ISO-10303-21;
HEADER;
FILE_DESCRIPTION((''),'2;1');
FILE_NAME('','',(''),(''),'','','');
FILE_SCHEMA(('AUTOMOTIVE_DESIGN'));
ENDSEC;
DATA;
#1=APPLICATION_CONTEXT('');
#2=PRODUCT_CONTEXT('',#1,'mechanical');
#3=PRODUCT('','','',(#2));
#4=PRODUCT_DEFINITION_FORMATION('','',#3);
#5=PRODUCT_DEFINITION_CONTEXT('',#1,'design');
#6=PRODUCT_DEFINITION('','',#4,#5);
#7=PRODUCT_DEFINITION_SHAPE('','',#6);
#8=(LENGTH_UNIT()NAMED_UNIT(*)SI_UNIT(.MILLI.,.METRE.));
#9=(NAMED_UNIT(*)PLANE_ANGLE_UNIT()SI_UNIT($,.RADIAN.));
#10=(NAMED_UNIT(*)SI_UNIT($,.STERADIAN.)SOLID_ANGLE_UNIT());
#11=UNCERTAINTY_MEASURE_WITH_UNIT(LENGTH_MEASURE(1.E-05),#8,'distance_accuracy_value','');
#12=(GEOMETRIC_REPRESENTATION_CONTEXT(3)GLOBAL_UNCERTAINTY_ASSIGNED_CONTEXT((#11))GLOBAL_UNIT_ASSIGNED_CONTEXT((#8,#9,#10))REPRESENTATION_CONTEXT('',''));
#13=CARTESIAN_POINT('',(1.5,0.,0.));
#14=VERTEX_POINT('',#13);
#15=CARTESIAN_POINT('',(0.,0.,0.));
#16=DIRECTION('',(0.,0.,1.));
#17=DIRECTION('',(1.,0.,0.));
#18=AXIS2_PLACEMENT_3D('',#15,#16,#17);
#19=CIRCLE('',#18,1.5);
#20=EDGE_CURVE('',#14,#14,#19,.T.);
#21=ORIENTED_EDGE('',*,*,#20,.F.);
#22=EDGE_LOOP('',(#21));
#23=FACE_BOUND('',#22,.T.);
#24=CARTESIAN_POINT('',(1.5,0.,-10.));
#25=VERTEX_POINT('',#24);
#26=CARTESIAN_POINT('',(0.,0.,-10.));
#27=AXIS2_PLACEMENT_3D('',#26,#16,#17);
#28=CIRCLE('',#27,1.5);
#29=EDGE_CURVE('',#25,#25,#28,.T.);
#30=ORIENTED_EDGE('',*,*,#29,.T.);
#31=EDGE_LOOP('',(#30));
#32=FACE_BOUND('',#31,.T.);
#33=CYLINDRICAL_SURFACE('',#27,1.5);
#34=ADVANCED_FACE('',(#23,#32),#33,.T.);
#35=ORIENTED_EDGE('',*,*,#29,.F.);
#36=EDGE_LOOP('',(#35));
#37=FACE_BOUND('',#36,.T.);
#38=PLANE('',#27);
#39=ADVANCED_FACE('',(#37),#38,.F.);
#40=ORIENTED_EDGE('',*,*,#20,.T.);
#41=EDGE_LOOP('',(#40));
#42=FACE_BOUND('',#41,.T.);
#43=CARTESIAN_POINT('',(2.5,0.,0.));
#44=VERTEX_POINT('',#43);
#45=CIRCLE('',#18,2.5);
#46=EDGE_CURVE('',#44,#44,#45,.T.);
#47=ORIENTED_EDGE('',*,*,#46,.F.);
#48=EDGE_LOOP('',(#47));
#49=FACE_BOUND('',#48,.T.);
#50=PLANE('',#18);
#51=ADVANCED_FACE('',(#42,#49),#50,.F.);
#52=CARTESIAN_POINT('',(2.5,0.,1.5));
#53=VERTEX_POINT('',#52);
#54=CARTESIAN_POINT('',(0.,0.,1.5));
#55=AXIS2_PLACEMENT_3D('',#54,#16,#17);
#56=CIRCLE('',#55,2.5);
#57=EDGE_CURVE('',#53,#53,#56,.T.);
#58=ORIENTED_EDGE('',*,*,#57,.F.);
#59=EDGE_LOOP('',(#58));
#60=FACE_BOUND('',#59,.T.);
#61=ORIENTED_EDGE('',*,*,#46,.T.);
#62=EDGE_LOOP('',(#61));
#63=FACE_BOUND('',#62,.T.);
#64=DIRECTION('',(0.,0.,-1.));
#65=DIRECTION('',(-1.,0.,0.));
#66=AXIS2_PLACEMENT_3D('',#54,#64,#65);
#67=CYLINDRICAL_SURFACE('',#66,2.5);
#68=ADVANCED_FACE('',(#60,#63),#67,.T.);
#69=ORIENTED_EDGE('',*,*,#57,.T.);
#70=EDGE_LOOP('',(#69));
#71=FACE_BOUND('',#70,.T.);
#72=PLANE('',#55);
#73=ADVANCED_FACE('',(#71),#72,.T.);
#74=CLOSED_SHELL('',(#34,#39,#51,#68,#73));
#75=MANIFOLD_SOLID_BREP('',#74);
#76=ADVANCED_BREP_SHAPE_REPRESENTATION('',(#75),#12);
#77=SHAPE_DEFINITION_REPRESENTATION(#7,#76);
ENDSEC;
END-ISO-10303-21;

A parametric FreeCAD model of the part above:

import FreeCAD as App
import Part
import Sketcher

doc = App.newDocument("Part")
params = doc.addObject("Spreadsheet::Sheet", "Params")
for row, (alias, value) in enumerate([
    ("sketch1_diameter", "5 mm"),
    ("pad1_length", "1.5 mm"),
    ("sketch2_diameter", "3 mm"),
    ("pad2_length", "10 mm"),
], start=1):
    params.set(f"A{row}", alias)
    params.set(f"B{row}", "=" + value)
    params.setAlias(f"B{row}", alias)

body = doc.addObject("PartDesign::Body", "Body")

sketch1 = body.newObject("Sketcher::SketchObject", "Sketch")
sketch1.AttachmentSupport = (doc.getObject("XY_Plane"), [""])
sketch1.MapMode = "FlatFace"
sketch1.addGeometry(Part.Circle(App.Vector(0, 0, 0), App.Vector(0, 0, 1), 2.5), False)
sketch1.addConstraint(Sketcher.Constraint("Coincident", 0, 3, -1, 1))
sketch1.addConstraint(Sketcher.Constraint("Diameter", 0, 5.0))
sketch1.setExpression("Constraints[1]", "Params.sketch1_diameter")
pad1 = body.newObject("PartDesign::Pad", "Pad")
pad1.Profile = sketch1
pad1.setExpression("Length", "Params.pad1_length")

sketch2 = body.newObject("Sketcher::SketchObject", "Sketch001")
sketch2.AttachmentSupport = (doc.getObject("XY_Plane"), [""])
sketch2.MapMode = "FlatFace"
sketch2.addGeometry(Part.Circle(App.Vector(0, 0, 0), App.Vector(0, 0, 1), 1.5), False)
sketch2.addConstraint(Sketcher.Constraint("Coincident", 0, 3, -1, 1))
sketch2.addConstraint(Sketcher.Constraint("Diameter", 0, 3.0))
sketch2.setExpression("Constraints[1]", "Params.sketch2_diameter")
pad2 = body.newObject("PartDesign::Pad", "Pad001")
pad2.Profile = sketch2
pad2.setExpression("Length", "Params.pad2_length")
pad2.Reversed = True

doc.recompute()
